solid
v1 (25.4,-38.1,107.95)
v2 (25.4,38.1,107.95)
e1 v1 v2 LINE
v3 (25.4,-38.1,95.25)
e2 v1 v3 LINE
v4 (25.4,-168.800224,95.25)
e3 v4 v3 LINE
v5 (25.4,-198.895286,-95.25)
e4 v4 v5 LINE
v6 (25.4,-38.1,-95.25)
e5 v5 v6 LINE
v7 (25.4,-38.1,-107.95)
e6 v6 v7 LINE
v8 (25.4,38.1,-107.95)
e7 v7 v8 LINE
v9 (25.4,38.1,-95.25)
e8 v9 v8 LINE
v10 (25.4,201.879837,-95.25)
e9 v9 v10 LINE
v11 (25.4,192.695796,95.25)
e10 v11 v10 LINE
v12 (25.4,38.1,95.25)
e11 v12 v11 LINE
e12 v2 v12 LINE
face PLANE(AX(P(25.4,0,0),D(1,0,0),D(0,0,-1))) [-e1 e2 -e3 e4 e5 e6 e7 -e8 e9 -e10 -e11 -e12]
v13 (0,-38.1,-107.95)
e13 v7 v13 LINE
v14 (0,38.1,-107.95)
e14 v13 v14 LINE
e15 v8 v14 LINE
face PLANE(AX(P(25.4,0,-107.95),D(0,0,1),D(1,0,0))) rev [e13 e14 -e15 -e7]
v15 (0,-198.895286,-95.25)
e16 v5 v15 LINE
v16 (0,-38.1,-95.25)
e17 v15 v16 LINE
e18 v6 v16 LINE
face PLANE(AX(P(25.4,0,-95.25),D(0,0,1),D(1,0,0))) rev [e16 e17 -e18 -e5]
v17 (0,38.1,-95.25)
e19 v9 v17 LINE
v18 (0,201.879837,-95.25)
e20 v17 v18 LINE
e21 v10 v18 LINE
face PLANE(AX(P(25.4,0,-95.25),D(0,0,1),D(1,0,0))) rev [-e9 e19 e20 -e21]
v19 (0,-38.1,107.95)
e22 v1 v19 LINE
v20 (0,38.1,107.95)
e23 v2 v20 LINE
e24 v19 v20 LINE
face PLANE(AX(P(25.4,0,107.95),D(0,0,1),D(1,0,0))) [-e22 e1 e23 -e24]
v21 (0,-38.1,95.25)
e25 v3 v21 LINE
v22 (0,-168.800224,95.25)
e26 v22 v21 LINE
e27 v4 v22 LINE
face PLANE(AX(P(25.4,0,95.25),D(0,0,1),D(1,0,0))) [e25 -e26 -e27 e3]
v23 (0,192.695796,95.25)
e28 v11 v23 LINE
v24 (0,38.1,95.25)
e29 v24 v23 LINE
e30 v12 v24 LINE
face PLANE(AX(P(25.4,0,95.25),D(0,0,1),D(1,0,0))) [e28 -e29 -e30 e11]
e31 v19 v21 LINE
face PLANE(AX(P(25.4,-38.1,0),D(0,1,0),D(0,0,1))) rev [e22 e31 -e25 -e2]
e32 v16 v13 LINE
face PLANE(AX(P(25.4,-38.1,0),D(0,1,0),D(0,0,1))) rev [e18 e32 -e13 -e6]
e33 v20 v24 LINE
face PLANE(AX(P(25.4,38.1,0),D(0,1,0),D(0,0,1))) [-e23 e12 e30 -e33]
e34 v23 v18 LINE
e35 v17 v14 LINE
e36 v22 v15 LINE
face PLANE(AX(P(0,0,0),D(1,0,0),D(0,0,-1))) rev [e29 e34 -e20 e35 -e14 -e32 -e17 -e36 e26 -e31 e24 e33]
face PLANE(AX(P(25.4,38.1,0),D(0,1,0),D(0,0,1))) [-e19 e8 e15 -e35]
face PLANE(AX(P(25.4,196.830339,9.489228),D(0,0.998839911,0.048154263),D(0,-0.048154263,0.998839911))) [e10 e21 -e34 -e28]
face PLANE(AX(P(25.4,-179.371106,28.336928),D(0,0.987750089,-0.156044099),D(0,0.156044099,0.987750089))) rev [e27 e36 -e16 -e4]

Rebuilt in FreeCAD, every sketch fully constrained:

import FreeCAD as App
import Part
import Sketcher
Q = App.Units.Quantity

doc = App.newDocument("Part")
body = doc.addObject("PartDesign::Body", "Body")

# Sketch on YZ plane
sketch1 = doc.addObject("Sketcher::SketchObject", "Sketch")
body.addObject(sketch1)
sketch1.AttachmentSupport = (doc.YZ_Plane, [""])
sketch1.MapMode = "FlatFace"
sketch1.addGeometry([
    Part.LineSegment(App.Vector(201.879837, -95.25, 0), App.Vector(192.695796, 95.25, 0)),  # 0
    Part.LineSegment(App.Vector(192.695796, 95.25, 0), App.Vector(38.1, 95.25, 0)),  # 1
    Part.LineSegment(App.Vector(38.1, 95.25, 0), App.Vector(38.1, 107.95, 0)),  # 2
    Part.LineSegment(App.Vector(38.1, 107.95, 0), App.Vector(-38.1, 107.95, 0)),  # 3
    Part.LineSegment(App.Vector(-38.1, 107.95, 0), App.Vector(-38.1, 95.25, 0)),  # 4
    Part.LineSegment(App.Vector(-38.1, 95.25, 0), App.Vector(-168.800224, 95.25, 0)),  # 5
    Part.LineSegment(App.Vector(-168.800224, 95.25, 0), App.Vector(-198.895286, -95.25, 0)),  # 6
    Part.LineSegment(App.Vector(-198.895286, -95.25, 0), App.Vector(-38.1, -95.25, 0)),  # 7
    Part.LineSegment(App.Vector(-38.1, -95.25, 0), App.Vector(-38.1, -107.95, 0)),  # 8
    Part.LineSegment(App.Vector(-38.1, -107.95, 0), App.Vector(38.1, -107.95, 0)),  # 9
    Part.LineSegment(App.Vector(38.1, -107.95, 0), App.Vector(38.1, -95.25, 0)),  # 10
    Part.LineSegment(App.Vector(38.1, -95.25, 0), App.Vector(201.879837, -95.25, 0)),  # 11
], False)
sketch1.addConstraint([
    Sketcher.Constraint("Coincident", 0, 2, 1, 1),
    Sketcher.Constraint("Coincident", 1, 2, 2, 1),
    Sketcher.Constraint("Coincident", 2, 2, 3, 1),
    Sketcher.Constraint("Coincident", 3, 2, 4, 1),
    Sketcher.Constraint("Coincident", 4, 2, 5, 1),
    Sketcher.Constraint("Coincident", 5, 2, 6, 1),
    Sketcher.Constraint("Coincident", 6, 2, 7, 1),
    Sketcher.Constraint("Coincident", 7, 2, 8, 1),
    Sketcher.Constraint("Coincident", 8, 2, 9, 1),
    Sketcher.Constraint("Coincident", 9, 2, 10, 1),
    Sketcher.Constraint("Coincident", 10, 2, 11, 1),
    Sketcher.Constraint("Coincident", 11, 2, 0, 1),
    Sketcher.Constraint("Horizontal", 1),
    Sketcher.Constraint("Vertical", 2),
    Sketcher.Constraint("Horizontal", 3),
    Sketcher.Constraint("Vertical", 4),
    Sketcher.Constraint("Horizontal", 5),
    Sketcher.Constraint("Horizontal", 7),
    Sketcher.Constraint("Vertical", 8),
    Sketcher.Constraint("Horizontal", 9),
    Sketcher.Constraint("Vertical", 10),
    Sketcher.Constraint("Horizontal", 11),
    Sketcher.Constraint("Symmetric", 1, 2, 7, 2, -1, 1),
    Sketcher.Constraint("Symmetric", 3, 2, 9, 2, -1, 1),
    Sketcher.Constraint("Symmetric", 1, 2, 4, 2, -2),
    Sketcher.Constraint("Horizontal", 7, 2, 10, 2),
    Sketcher.Constraint("DistanceX", 3, 2, 3, 1, Q("3 in")),
    Sketcher.Constraint("DistanceY", 2, 1, 2, 2, Q("0.5 in")),
    Sketcher.Constraint("DistanceY", 6, 2, 3, 2, Q("8 in")),
    Sketcher.Constraint("Distance", 6, 192.862549),
    Sketcher.Constraint("DistanceX", 1, 2, 1, 1, 154.595796),
    Sketcher.Constraint("DistanceX", 5, 2, 5, 1, 130.700224),
    Sketcher.Constraint("DistanceX", 11, 1, 11, 2, 163.779837),
])
pad1 = doc.addObject("PartDesign::Pad", "Pad")
body.addObject(pad1)
pad1.Profile = sketch1
pad1.Length = Q("1 in")

doc.recompute()
